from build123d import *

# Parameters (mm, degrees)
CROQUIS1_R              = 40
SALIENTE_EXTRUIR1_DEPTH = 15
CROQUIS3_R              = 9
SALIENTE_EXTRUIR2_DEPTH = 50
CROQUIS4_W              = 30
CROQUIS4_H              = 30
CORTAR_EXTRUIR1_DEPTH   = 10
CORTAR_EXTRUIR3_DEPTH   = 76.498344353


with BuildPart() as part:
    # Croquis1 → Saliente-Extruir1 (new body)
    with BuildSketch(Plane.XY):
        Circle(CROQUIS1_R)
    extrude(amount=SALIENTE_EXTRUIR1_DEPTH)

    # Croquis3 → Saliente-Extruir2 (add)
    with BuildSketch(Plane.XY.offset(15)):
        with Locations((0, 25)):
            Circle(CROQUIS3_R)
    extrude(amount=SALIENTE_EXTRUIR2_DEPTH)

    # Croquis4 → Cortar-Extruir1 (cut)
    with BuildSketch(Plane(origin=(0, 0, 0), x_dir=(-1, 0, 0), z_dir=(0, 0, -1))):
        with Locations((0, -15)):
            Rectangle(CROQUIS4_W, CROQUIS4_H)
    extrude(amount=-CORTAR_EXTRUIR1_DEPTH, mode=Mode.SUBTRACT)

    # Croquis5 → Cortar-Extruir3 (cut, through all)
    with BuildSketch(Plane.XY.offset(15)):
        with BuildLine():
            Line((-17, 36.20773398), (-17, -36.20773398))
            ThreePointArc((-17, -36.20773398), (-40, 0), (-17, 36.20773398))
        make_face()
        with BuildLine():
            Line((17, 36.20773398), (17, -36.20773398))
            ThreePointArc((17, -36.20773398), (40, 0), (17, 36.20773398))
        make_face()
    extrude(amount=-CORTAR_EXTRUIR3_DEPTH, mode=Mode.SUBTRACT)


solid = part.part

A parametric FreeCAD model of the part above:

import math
import FreeCAD as App
import Part
import Sketcher

V = App.Vector
Q = App.Units.Quantity


def add_polygon(sketch, points):
    """Adds a closed chain of lines whose ends are joined by coincident constraints."""
    first, n = sketch.GeometryCount, len(points)
    for a, b in zip(points, points[1:] + points[:1]):
        sketch.addGeometry(Part.LineSegment(App.Vector(*a, 0), App.Vector(*b, 0)), False)
    for i in range(n):
        sketch.addConstraint(Sketcher.Constraint("Coincident", first + i, 2, first + (i + 1) % n, 1))

doc = App.newDocument("Part")
body = doc.addObject("PartDesign::Body", "Body")

# Sketch on XY plane
sketch1 = body.newObject("Sketcher::SketchObject", "Sketch")
sketch1.AttachmentSupport = (doc.getObject("XY_Plane"), [""])
sketch1.MapMode = "FlatFace"
sketch1.addGeometry(Part.Circle(V(0, 0, 0), V(0, 0, 1), 40), False)
sketch1.addConstraint([
    Sketcher.Constraint("Coincident", 0, 3, -1, 1),
    Sketcher.Constraint("Diameter", 0, Q("80 mm")),
])
pad1 = body.newObject("PartDesign::Pad", "Pad")
pad1.Profile = sketch1
pad1.Length = 15

# Sketch on XY plane
sketch2 = body.newObject("Sketcher::SketchObject", "Sketch001")
sketch2.AttachmentSupport = (doc.getObject("XY_Plane"), [""])
sketch2.MapMode = "FlatFace"
sketch2.AttachmentOffset = App.Placement(V(0, 0, 15), App.Rotation())
sketch2.addGeometry(Part.Circle(V(0, 25, 0), V(0, 0, 1), 9), False)
sketch2.addConstraint([
    Sketcher.Constraint("PointOnObject", 0, 3, -2),
    Sketcher.Constraint("Diameter", 0, Q("18 mm")),
    Sketcher.Constraint("DistanceY", -1, 1, 0, 3, Q("25 mm")),
])
pad2 = body.newObject("PartDesign::Pad", "Pad001")
pad2.Profile = sketch2
pad2.Length = 50

# Sketch on XY plane
sketch3 = body.newObject("Sketcher::SketchObject", "Sketch002")
sketch3.AttachmentSupport = (doc.getObject("XY_Plane"), [""])
sketch3.MapMode = "FlatFace"
add_polygon(sketch3, [(15, 0), (15, -30), (-15, -30), (-15, 0)])  # lines 0-3
sketch3.addConstraint([
    Sketcher.Constraint("Vertical", 0),
    Sketcher.Constraint("Horizontal", 1),
    Sketcher.Constraint("Vertical", 2),
    Sketcher.Constraint("Horizontal", 3),
    Sketcher.Constraint("Symmetric", 2, 2, 3, 2, -1, 1),
    Sketcher.Constraint("Equal", 3, 0),
    Sketcher.Constraint("DistanceX", 1, 2, 1, 1, Q("30 mm")),
])
pocket1 = body.newObject("PartDesign::Pocket", "Pocket")
pocket1.Profile = sketch3
pocket1.Length = 10
pocket1.Reversed = True

# Sketch on XY plane
sketch4 = body.newObject("Sketcher::SketchObject", "Sketch003")
sketch4.AttachmentSupport = (doc.getObject("XY_Plane"), [""])
sketch4.MapMode = "FlatFace"
sketch4.AttachmentOffset = App.Placement(V(0, 0, 15), App.Rotation())
sketch4.addGeometry([
    Part.LineSegment(V(-17, -36, 0), V(-17, 36, 0)),
    Part.ArcOfCircle(Part.Circle(V(0, 0, 0), V(0, 0, 1), 40), math.radians(115), math.radians(245)),
    Part.LineSegment(V(17, 36, 0), V(17, -36, 0)),
    Part.ArcOfCircle(Part.Circle(V(0, 0, 0), V(0, 0, 1), 40), math.radians(-65), math.radians(65)),
], False)
sketch4.addConstraint([
    Sketcher.Constraint("Coincident", 0, 1, 1, 2),
    Sketcher.Constraint("Coincident", 1, 1, 0, 2),
    Sketcher.Constraint("Coincident", 2, 1, 3, 2),
    Sketcher.Constraint("Coincident", 3, 1, 2, 2),
    Sketcher.Constraint("Vertical", 0),
    Sketcher.Constraint("Vertical", 2),
    Sketcher.Constraint("Coincident", 1, 3, -1, 1),
    Sketcher.Constraint("Coincident", 3, 3, -1, 1),
    Sketcher.Constraint("Equal", 1, 3),
    Sketcher.Constraint("Horizontal", 1, 1, 2, 1),
    Sketcher.Constraint("Radius", 1, Q("40 mm")),
    Sketcher.Constraint("DistanceX", 0, 1, -1, 1, Q("17 mm")),
])
pocket2 = body.newObject("PartDesign::Pocket", "Pocket001")
pocket2.Profile = sketch4
pocket2.Type = "ThroughAll"

doc.recompute()
